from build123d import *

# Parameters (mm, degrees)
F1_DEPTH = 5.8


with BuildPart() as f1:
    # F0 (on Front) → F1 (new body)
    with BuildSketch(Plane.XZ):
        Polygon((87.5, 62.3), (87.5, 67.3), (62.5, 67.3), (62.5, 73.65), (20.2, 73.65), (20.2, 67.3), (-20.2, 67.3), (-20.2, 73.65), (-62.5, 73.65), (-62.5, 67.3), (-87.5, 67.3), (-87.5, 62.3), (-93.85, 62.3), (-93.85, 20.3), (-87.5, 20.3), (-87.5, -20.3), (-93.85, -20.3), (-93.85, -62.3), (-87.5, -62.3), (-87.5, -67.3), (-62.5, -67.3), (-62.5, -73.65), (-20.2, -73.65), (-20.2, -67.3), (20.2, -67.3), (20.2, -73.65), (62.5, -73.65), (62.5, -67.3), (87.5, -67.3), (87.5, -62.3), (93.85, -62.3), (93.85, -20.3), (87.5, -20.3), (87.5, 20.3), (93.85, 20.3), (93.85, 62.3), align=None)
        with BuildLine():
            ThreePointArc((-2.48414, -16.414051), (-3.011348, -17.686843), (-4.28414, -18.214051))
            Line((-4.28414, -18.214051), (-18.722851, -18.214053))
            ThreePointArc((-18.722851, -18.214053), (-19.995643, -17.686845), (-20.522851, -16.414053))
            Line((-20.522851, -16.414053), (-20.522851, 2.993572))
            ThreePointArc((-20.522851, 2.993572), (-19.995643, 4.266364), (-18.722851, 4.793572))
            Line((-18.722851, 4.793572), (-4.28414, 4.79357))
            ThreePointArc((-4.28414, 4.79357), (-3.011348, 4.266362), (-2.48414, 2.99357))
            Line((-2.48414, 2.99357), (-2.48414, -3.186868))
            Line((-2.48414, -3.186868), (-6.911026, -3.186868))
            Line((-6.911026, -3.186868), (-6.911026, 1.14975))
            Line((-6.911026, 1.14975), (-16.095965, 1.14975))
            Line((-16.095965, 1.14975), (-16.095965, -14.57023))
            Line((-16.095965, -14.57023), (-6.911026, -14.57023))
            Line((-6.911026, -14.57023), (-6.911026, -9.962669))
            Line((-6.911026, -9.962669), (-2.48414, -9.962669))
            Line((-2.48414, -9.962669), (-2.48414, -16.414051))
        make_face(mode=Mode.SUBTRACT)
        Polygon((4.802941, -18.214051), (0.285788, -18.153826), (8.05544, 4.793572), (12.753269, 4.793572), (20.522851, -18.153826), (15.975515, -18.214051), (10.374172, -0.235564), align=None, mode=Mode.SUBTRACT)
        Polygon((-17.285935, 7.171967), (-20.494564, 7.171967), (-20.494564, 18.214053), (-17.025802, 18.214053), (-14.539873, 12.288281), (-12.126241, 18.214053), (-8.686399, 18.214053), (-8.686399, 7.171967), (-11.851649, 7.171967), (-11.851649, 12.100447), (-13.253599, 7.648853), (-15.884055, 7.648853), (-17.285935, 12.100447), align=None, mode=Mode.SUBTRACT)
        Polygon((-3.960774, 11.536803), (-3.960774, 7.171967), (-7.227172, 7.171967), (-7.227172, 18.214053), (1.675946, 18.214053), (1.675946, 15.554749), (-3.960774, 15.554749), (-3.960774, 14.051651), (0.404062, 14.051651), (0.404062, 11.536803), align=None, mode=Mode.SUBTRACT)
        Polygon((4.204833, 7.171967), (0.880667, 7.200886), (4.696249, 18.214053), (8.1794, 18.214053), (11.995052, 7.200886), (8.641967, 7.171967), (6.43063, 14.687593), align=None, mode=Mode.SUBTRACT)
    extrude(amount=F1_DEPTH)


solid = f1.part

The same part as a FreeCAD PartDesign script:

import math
import FreeCAD as App
import Part
import Sketcher

V = App.Vector


def add_polygon(sketch, points):
    """Adds a closed chain of lines whose ends are joined by coincident constraints."""
    first, n = sketch.GeometryCount, len(points)
    for a, b in zip(points, points[1:] + points[:1]):
        sketch.addGeometry(Part.LineSegment(App.Vector(*a, 0), App.Vector(*b, 0)), False)
    for i in range(n):
        sketch.addConstraint(Sketcher.Constraint("Coincident", first + i, 2, first + (i + 1) % n, 1))

doc = App.newDocument("Part")
body = doc.addObject("PartDesign::Body", "Body")

# Sketch on XZ plane
sketch1 = body.newObject("Sketcher::SketchObject", "Sketch")
sketch1.AttachmentSupport = (doc.getObject("XZ_Plane"), [""])
sketch1.MapMode = "FlatFace"
add_polygon(sketch1, [(87.5, 62.3), (87.5, 67.3), (62.5, 67.3), (62.5, 73.7), (20.2, 73.7), (20.2, 67.3), (-20.2, 67.3), (-20.2, 73.7), (-62.5, 73.7), (-62.5, 67.3), (-87.5, 67.3), (-87.5, 62.3), (-93.8, 62.3), (-93.8, 20.3), (-87.5, 20.3), (-87.5, -20.3), (-93.8, -20.3), (-93.8, -62.3), (-87.5, -62.3), (-87.5, -67.3), (-62.5, -67.3), (-62.5, -73.7), (-20.2, -73.7), (-20.2, -67.3), (20.2, -67.3), (20.2, -73.7), (62.5, -73.7), (62.5, -67.3), (87.5, -67.3), (87.5, -62.3), (93.8, -62.3), (93.8, -20.3), (87.5, -20.3), (87.5, 20.3), (93.8, 20.3), (93.8, 62.3)])  # lines 0-35
sketch1.addGeometry(Part.LineSegment(V(-2.5, -10, 0), V(-2.5, -16.4, 0)), False)  # 36
sketch1.addGeometry(Part.ArcOfCircle(Part.Circle(V(-4.3, -16.4, 0), V(0, 0, 1), 1.8), math.radians(-90), math.radians(0)), False)  # 37
sketch1.addGeometry(Part.LineSegment(V(-4.3, -18.2, 0), V(-18.7, -18.2, 0)), False)  # 38
sketch1.addGeometry(Part.ArcOfCircle(Part.Circle(V(-18.7, -16.4, 0), V(0, 0, 1), 1.8), math.radians(-180), math.radians(-90)), False)  # 39
sketch1.addGeometry(Part.LineSegment(V(-20.5, -16.4, 0), V(-20.5, 3, 0)), False)  # 40
sketch1.addGeometry(Part.ArcOfCircle(Part.Circle(V(-18.7, 3, 0), V(0, 0, 1), 1.8), math.radians(90), math.radians(180)), False)  # 41
sketch1.addGeometry(Part.LineSegment(V(-18.7, 4.8, 0), V(-4.3, 4.8, 0)), False)  # 42
sketch1.addGeometry(Part.ArcOfCircle(Part.Circle(V(-4.3, 3, 0), V(0, 0, 1), 1.8), math.radians(0), math.radians(90)), False)  # 43
sketch1.addGeometry(Part.LineSegment(V(-2.5, 3, 0), V(-2.5, -3.2, 0)), False)  # 44
sketch1.addGeometry(Part.LineSegment(V(-2.5, -3.2, 0), V(-6.9, -3.2, 0)), False)  # 45
sketch1.addGeometry(Part.LineSegment(V(-6.9, -3.2, 0), V(-6.9, 1.1, 0)), False)  # 46
sketch1.addGeometry(Part.LineSegment(V(-6.9, 1.1, 0), V(-16.1, 1.1, 0)), False)  # 47
sketch1.addGeometry(Part.LineSegment(V(-16.1, 1.1, 0), V(-16.1, -14.6, 0)), False)  # 48
sketch1.addGeometry(Part.LineSegment(V(-16.1, -14.6, 0), V(-6.9, -14.6, 0)), False)  # 49
sketch1.addGeometry(Part.LineSegment(V(-6.9, -14.6, 0), V(-6.9, -10, 0)), False)  # 50
sketch1.addGeometry(Part.LineSegment(V(-6.9, -10, 0), V(-2.5, -10, 0)), False)  # 51
add_polygon(sketch1, [(10.4, -0.2), (4.8, -18.2), (0.3, -18.2), (8.1, 4.8), (12.8, 4.8), (20.5, -18.2), (16, -18.2)])  # lines 52-58
add_polygon(sketch1, [(-17.3, 12.1), (-17.3, 7.2), (-20.5, 7.2), (-20.5, 18.2), (-17, 18.2), (-14.5, 12.3), (-12.1, 18.2), (-8.7, 18.2), (-8.7, 7.2), (-11.9, 7.2), (-11.9, 12.1), (-13.3, 7.6), (-15.9, 7.6)])  # lines 59-71
add_polygon(sketch1, [(0.4, 11.5), (-4, 11.5), (-4, 7.2), (-7.2, 7.2), (-7.2, 18.2), (1.7, 18.2), (1.7, 15.6), (-4, 15.6), (-4, 14.1), (0.4, 14.1)])  # lines 72-81
add_polygon(sketch1, [(6.4, 14.7), (4.2, 7.2), (0.9, 7.2), (4.7, 18.2), (8.2, 18.2), (12, 7.2), (8.6, 7.2)])  # lines 82-88
sketch1.addConstraint([
    Sketcher.Constraint("Tangent", 36, 2, 37, 2),
    Sketcher.Constraint("Tangent", 37, 1, 38, 1),
    Sketcher.Constraint("Tangent", 38, 2, 39, 2),
    Sketcher.Constraint("Tangent", 39, 1, 40, 1),
    Sketcher.Constraint("Tangent", 40, 2, 41, 2),
    Sketcher.Constraint("Tangent", 41, 1, 42, 1),
    Sketcher.Constraint("Tangent", 42, 2, 43, 2),
    Sketcher.Constraint("Tangent", 43, 1, 44, 1),
    Sketcher.Constraint("Coincident", 44, 2, 45, 1),
    Sketcher.Constraint("Coincident", 45, 2, 46, 1),
    Sketcher.Constraint("Coincident", 46, 2, 47, 1),
    Sketcher.Constraint("Coincident", 47, 2, 48, 1),
    Sketcher.Constraint("Coincident", 48, 2, 49, 1),
    Sketcher.Constraint("Coincident", 49, 2, 50, 1),
    Sketcher.Constraint("Coincident", 50, 2, 51, 1),
    Sketcher.Constraint("Coincident", 51, 2, 36, 1),
    Sketcher.Constraint("Vertical", 0),
    Sketcher.Constraint("Horizontal", 1),
    Sketcher.Constraint("Vertical", 2),
    Sketcher.Constraint("Horizontal", 3),
    Sketcher.Constraint("Vertical", 4),
    Sketcher.Constraint("Horizontal", 5),
    Sketcher.Constraint("Vertical", 6),
    Sketcher.Constraint("Horizontal", 7),
    Sketcher.Constraint("Vertical", 8),
    Sketcher.Constraint("Horizontal", 9),
    Sketcher.Constraint("Vertical", 10),
    Sketcher.Constraint("Horizontal", 11),
    Sketcher.Constraint("Vertical", 12),
    Sketcher.Constraint("Horizontal", 13),
    Sketcher.Constraint("Vertical", 14),
    Sketcher.Constraint("Horizontal", 15),
    Sketcher.Constraint("Vertical", 16),
    Sketcher.Constraint("Horizontal", 17),
    Sketcher.Constraint("Vertical", 18),
    Sketcher.Constraint("Horizontal", 19),
    Sketcher.Constraint("Vertical", 20),
    Sketcher.Constraint("Horizontal", 21),
    Sketcher.Constraint("Vertical", 22),
    Sketcher.Constraint("Horizontal", 23),
    Sketcher.Constraint("Vertical", 24),
    Sketcher.Constraint("Horizontal", 25),
    Sketcher.Constraint("Vertical", 26),
    Sketcher.Constraint("Horizontal", 27),
    Sketcher.Constraint("Vertical", 28),
    Sketcher.Constraint("Horizontal", 29),
    Sketcher.Constraint("Vertical", 30),
    Sketcher.Constraint("Horizontal", 31),
    Sketcher.Constraint("Vertical", 32),
    Sketcher.Constraint("Horizontal", 33),
    Sketcher.Constraint("Vertical", 34),
    Sketcher.Constraint("Horizontal", 35),
    Sketcher.Constraint("Vertical", 36),
    Sketcher.Constraint("Horizontal", 38),
    Sketcher.Constraint("Vertical", 40),
    Sketcher.Constraint("Vertical", 44),
    Sketcher.Constraint("Horizontal", 45),
    Sketcher.Constraint("Vertical", 46),
    Sketcher.Constraint("Horizontal", 47),
    Sketcher.Constraint("Vertical", 48),
    Sketcher.Constraint("Horizontal", 49),
    Sketcher.Constraint("Vertical", 50),
    Sketcher.Constraint("Horizontal", 51),
    Sketcher.Constraint("Horizontal", 55),
    Sketcher.Constraint("Vertical", 59),
    Sketcher.Constraint("Horizontal", 60),
    Sketcher.Constraint("Vertical", 61),
    Sketcher.Constraint("Horizontal", 62),
    Sketcher.Constraint("Horizontal", 65),
    Sketcher.Constraint("Vertical", 66),
    Sketcher.Constraint("Horizontal", 67),
    Sketcher.Constraint("Vertical", 68),
    Sketcher.Constraint("Horizontal", 70),
    Sketcher.Constraint("Horizontal", 72),
    Sketcher.Constraint("Vertical", 73),
    Sketcher.Constraint("Horizontal", 74),
    Sketcher.Constraint("Vertical", 75),
    Sketcher.Constraint("Horizontal", 76),
    Sketcher.Constraint("Vertical", 77),
    Sketcher.Constraint("Horizontal", 78),
    Sketcher.Constraint("Vertical", 79),
    Sketcher.Constraint("Horizontal", 80),
    Sketcher.Constraint("Vertical", 81),
    Sketcher.Constraint("Horizontal", 85),
    Sketcher.Constraint("Equal", 37, 39),
    Sketcher.Constraint("Equal", 39, 41),
    Sketcher.Constraint("Equal", 41, 43),
    Sketcher.Constraint("Symmetric", 0, 2, 18, 2, -1, 1),
    Sketcher.Constraint("Symmetric", 2, 2, 20, 2, -1, 1),
    Sketcher.Constraint("Symmetric", 4, 2, 22, 2, -1, 1),
    Sketcher.Constraint("Symmetric", 6, 2, 24, 2, -1, 1),
    Sketcher.Constraint("Symmetric", 8, 2, 26, 2, -1, 1),
    Sketcher.Constraint("Symmetric", 10, 2, 28, 2, -1, 1),
    Sketcher.Constraint("Symmetric", 12, 2, 30, 2, -1, 1),
    Sketcher.Constraint("Symmetric", 14, 2, 32, 2, -1, 1),
    Sketcher.Constraint("Symmetric", 16, 2, 34, 2, -1, 1),
    Sketcher.Constraint("Symmetric", 3, 2, 6, 2, -2),
    Sketcher.Constraint("Symmetric", 1, 2, 8, 2, -2),
    Sketcher.Constraint("Symmetric", 17, 2, 28, 2, -2),
    Sketcher.Constraint("Symmetric", 15, 2, 30, 2, -2),
    Sketcher.Constraint("Horizontal", 41, 3, 43, 3),
    Sketcher.Constraint("Horizontal", 1, 2, 4, 2),
    Sketcher.Constraint("Horizontal", 38, 2, 52, 2),
    Sketcher.Constraint("Horizontal", 41, 1, 54, 2),
    Sketcher.Constraint("Horizontal", 53, 2, 56, 2),
    Sketcher.Constraint("Horizontal", 52, 2, 57, 2),
    Sketcher.Constraint("Horizontal", 62, 2, 64, 2),
    Sketcher.Constraint("Horizontal", 60, 2, 66, 2),
    Sketcher.Constraint("Horizontal", 68, 2, 71, 2),
    Sketcher.Constraint("Horizontal", 67, 2, 73, 2),
    Sketcher.Constraint("Horizontal", 65, 2, 75, 2),
    Sketcher.Constraint("Horizontal", 74, 2, 82, 2),
    Sketcher.Constraint("Horizontal", 76, 2, 84, 2),
    Sketcher.Constraint("Horizontal", 83, 2, 86, 2),
    Sketcher.Constraint("Horizontal", 82, 2, 87, 2),
    Sketcher.Constraint("Vertical", 37, 3, 43, 3),
    Sketcher.Constraint("Vertical", 10, 2, 13, 2),
    Sketcher.Constraint("Vertical", 46, 2, 49, 2),
    Sketcher.Constraint("Vertical", 73, 2, 78, 2),
    Sketcher.Constraint("Equal", 35, 2),
    Sketcher.Constraint("Equal", 80, 73),
    Sketcher.Constraint("Radius", 37, 1.800001),
    Sketcher.Constraint("DistanceX", 1, 2, 1, 1, 25.0),
    Sketcher.Constraint("DistanceY", 0, 1, 0, 2, 5.0),
    Sketcher.Constraint("DistanceY", 12, 2, 12, 1, 42.0),
    Sketcher.Constraint("DistanceX", 3, 2, 3, 1, 42.3),
    Sketcher.Constraint("DistanceX", 5, 2, 5, 1, 40.4),
    Sketcher.Constraint("DistanceY", 14, 2, 14, 1, 40.6),
    Sketcher.Constraint("DistanceX", 11, 2, 11, 1, 6.35),
    Sketcher.Constraint("DistanceX", 74, 2, 74, 1, 3.266398),
    Sketcher.Constraint("DistanceX", 38, 2, 38, 1, 14.438711),
    Sketcher.Constraint("DistanceX", 47, 2, 47, 1, 9.184939),
    Sketcher.Constraint("DistanceX", 55, 1, 55, 2, 4.697829),
    Sketcher.Constraint("DistanceX", 60, 2, 60, 1, 3.208629),
    Sketcher.Constraint("DistanceX", 67, 2, 67, 1, 3.16525),
    Sketcher.Constraint("DistanceX", 76, 1, 76, 2, 8.903118),
    Sketcher.Constraint("DistanceX", 85, 1, 85, 2, 3.483151),
    Sketcher.Constraint("DistanceY", 44, 2, 44, 1, 6.180438),
    Sketcher.Constraint("DistanceY", 48, 2, 48, 1, 15.71998),
    Sketcher.Constraint("DistanceY", 50, 1, 50, 2, 4.607561),
    Sketcher.Constraint("DistanceY", 59, 2, 59, 1, 4.92848),
    Sketcher.Constraint("DistanceX", 62, 2, -1, 1, 17.025802),
    Sketcher.Constraint("DistanceX", 65, 2, -1, 1, 8.686399),
    Sketcher.Constraint("DistanceX", 69, 2, -1, 1, 13.253599),
    Sketcher.Constraint("DistanceX", -1, 1, 85, 2, 8.1794),
    Sketcher.Constraint("Distance", 52, 18.821918),
    Sketcher.Constraint("Distance", 56, 24.22704),
    Sketcher.Constraint("Distance", 63, 6.426089),
    Sketcher.Constraint("Distance", 64, 6.398468),
    Sketcher.Constraint("Distance", 82, 7.838291),
    Sketcher.Constraint("Distance", 83, 3.324292),
    Sketcher.Constraint("Distance", 86, 11.65543),
    Sketcher.Constraint("Distance", 87, 3.35321),
    Sketcher.Constraint("DistanceX", 45, 2, 45, 1, 4.426886),
    Sketcher.Constraint("DistanceX", 62, 1, 62, 2, 3.468762),
    Sketcher.Constraint("DistanceX", 65, 1, 65, 2, 3.439842),
    Sketcher.Constraint("DistanceX", 70, 2, 70, 1, 2.630456),
    Sketcher.Constraint("DistanceX", 72, 2, 72, 1, 4.364836),
    Sketcher.Constraint("DistanceY", 36, 2, 36, 1, 6.451382),
    Sketcher.Constraint("DistanceY", 40, 1, 40, 2, 19.407625),
    Sketcher.Constraint("DistanceY", 61, 1, 61, 2, 11.042086),
    Sketcher.Constraint("DistanceY", 77, 2, 77, 1, 2.659304),
    Sketcher.Constraint("DistanceY", 79, 2, 79, 1, 1.503098),
    Sketcher.Constraint("DistanceX", 37, 3, -1, 1, 4.284141),
    Sketcher.Constraint("DistanceY", 37, 3, -1, 1, 16.41405),
    Sketcher.Constraint("DistanceX", -1, 1, 52, 2, 4.802941),
    Sketcher.Constraint("DistanceX", -1, 1, 54, 2, 8.05544),
    Sketcher.Constraint("DistanceX", -1, 1, 56, 2, 20.522851),
    Sketcher.Constraint("DistanceY", -1, 1, 63, 2, 12.288281),
    Sketcher.Constraint("DistanceX", -1, 1, 86, 2, 11.995052),
    Sketcher.Constraint("DistanceX", -1, 1, 88, 2, 6.43063),
    Sketcher.Constraint("Distance", 53, 4.517554),
    Sketcher.Constraint("Distance", 57, 4.547735),
    Sketcher.Constraint("Distance", 58, 18.830853),
    Sketcher.Constraint("Distance", 69, 4.667135),
    Sketcher.Constraint("Distance", 84, 11.655407),
    Sketcher.Constraint("DistanceX", 72, 2, -1, 1, 3.960774),
])
pad1 = body.newObject("PartDesign::Pad", "Pad")
pad1.Profile = sketch1
pad1.Length = 5.8

doc.recompute()
